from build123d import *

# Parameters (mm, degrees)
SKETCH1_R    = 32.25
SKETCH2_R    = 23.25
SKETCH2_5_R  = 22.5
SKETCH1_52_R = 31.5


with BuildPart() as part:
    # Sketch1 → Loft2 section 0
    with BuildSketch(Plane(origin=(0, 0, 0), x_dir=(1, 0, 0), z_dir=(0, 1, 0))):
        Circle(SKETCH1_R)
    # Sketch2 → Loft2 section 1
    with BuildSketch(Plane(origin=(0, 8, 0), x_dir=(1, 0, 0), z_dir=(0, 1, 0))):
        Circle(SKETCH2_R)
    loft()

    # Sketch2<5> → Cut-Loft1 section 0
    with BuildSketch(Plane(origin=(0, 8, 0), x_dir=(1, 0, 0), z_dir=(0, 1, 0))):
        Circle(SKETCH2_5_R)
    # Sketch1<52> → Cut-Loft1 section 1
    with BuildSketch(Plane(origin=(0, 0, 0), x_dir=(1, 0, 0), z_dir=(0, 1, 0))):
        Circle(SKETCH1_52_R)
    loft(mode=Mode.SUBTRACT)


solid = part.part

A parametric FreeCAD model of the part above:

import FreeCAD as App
import Part
import Sketcher

doc = App.newDocument("Part")
body = doc.addObject("PartDesign::Body", "Body")

# Sketch on XZ plane
sketch1 = doc.addObject("Sketcher::SketchObject", "Sketch")
body.addObject(sketch1)
sketch1.AttachmentSupport = (doc.XZ_Plane, [""])
sketch1.MapMode = "FlatFace"
sketch1.addGeometry(Part.Circle(App.Vector(0, 0, 0), App.Vector(0, 0, 1), 32.25), False)
sketch1.addConstraint([
    Sketcher.Constraint("Coincident", 0, 3, -1, 1),
    Sketcher.Constraint("Diameter", 0, 64.5),
])

# Sketch on XZ plane
sketch2 = doc.addObject("Sketcher::SketchObject", "Sketch001")
body.addObject(sketch2)
sketch2.AttachmentSupport = (doc.XZ_Plane, [""])
sketch2.MapMode = "FlatFace"
sketch2.AttachmentOffset = App.Placement(App.Vector(0, 0, -8), App.Rotation())
sketch2.addGeometry(Part.Circle(App.Vector(0, 0, 0), App.Vector(0, 0, 1), 23.25), False)
sketch2.addConstraint([
    Sketcher.Constraint("Coincident", 0, 3, -1, 1),
    Sketcher.Constraint("Diameter", 0, 46.5),
])

additiveloft = doc.addObject("PartDesign::AdditiveLoft", "AdditiveLoft")
body.addObject(additiveloft)
additiveloft.Profile = sketch1
additiveloft.Sections = [sketch2]

# Sketch on XZ plane
sketch3 = doc.addObject("Sketcher::SketchObject", "Sketch002")
body.addObject(sketch3)
sketch3.AttachmentSupport = (doc.XZ_Plane, [""])
sketch3.MapMode = "FlatFace"
sketch3.AttachmentOffset = App.Placement(App.Vector(0, 0, -8), App.Rotation())
sketch3.addGeometry(Part.Circle(App.Vector(0, 0, 0), App.Vector(0, 0, 1), 22.5), False)
sketch3.addConstraint([
    Sketcher.Constraint("Coincident", 0, 3, -1, 1),
    Sketcher.Constraint("Diameter", 0, 45.0),
])

# Sketch on XZ plane
sketch4 = doc.addObject("Sketcher::SketchObject", "Sketch003")
body.addObject(sketch4)
sketch4.AttachmentSupport = (doc.XZ_Plane, [""])
sketch4.MapMode = "FlatFace"
sketch4.addGeometry(Part.Circle(App.Vector(0, 0, 0), App.Vector(0, 0, 1), 31.5), False)
sketch4.addConstraint([
    Sketcher.Constraint("Coincident", 0, 3, -1, 1),
    Sketcher.Constraint("Diameter", 0, 63.0),
])

subtractiveloft = doc.addObject("PartDesign::SubtractiveLoft", "SubtractiveLoft")
body.addObject(subtractiveloft)
subtractiveloft.Profile = sketch3
subtractiveloft.Sections = [sketch4]

doc.recompute()
